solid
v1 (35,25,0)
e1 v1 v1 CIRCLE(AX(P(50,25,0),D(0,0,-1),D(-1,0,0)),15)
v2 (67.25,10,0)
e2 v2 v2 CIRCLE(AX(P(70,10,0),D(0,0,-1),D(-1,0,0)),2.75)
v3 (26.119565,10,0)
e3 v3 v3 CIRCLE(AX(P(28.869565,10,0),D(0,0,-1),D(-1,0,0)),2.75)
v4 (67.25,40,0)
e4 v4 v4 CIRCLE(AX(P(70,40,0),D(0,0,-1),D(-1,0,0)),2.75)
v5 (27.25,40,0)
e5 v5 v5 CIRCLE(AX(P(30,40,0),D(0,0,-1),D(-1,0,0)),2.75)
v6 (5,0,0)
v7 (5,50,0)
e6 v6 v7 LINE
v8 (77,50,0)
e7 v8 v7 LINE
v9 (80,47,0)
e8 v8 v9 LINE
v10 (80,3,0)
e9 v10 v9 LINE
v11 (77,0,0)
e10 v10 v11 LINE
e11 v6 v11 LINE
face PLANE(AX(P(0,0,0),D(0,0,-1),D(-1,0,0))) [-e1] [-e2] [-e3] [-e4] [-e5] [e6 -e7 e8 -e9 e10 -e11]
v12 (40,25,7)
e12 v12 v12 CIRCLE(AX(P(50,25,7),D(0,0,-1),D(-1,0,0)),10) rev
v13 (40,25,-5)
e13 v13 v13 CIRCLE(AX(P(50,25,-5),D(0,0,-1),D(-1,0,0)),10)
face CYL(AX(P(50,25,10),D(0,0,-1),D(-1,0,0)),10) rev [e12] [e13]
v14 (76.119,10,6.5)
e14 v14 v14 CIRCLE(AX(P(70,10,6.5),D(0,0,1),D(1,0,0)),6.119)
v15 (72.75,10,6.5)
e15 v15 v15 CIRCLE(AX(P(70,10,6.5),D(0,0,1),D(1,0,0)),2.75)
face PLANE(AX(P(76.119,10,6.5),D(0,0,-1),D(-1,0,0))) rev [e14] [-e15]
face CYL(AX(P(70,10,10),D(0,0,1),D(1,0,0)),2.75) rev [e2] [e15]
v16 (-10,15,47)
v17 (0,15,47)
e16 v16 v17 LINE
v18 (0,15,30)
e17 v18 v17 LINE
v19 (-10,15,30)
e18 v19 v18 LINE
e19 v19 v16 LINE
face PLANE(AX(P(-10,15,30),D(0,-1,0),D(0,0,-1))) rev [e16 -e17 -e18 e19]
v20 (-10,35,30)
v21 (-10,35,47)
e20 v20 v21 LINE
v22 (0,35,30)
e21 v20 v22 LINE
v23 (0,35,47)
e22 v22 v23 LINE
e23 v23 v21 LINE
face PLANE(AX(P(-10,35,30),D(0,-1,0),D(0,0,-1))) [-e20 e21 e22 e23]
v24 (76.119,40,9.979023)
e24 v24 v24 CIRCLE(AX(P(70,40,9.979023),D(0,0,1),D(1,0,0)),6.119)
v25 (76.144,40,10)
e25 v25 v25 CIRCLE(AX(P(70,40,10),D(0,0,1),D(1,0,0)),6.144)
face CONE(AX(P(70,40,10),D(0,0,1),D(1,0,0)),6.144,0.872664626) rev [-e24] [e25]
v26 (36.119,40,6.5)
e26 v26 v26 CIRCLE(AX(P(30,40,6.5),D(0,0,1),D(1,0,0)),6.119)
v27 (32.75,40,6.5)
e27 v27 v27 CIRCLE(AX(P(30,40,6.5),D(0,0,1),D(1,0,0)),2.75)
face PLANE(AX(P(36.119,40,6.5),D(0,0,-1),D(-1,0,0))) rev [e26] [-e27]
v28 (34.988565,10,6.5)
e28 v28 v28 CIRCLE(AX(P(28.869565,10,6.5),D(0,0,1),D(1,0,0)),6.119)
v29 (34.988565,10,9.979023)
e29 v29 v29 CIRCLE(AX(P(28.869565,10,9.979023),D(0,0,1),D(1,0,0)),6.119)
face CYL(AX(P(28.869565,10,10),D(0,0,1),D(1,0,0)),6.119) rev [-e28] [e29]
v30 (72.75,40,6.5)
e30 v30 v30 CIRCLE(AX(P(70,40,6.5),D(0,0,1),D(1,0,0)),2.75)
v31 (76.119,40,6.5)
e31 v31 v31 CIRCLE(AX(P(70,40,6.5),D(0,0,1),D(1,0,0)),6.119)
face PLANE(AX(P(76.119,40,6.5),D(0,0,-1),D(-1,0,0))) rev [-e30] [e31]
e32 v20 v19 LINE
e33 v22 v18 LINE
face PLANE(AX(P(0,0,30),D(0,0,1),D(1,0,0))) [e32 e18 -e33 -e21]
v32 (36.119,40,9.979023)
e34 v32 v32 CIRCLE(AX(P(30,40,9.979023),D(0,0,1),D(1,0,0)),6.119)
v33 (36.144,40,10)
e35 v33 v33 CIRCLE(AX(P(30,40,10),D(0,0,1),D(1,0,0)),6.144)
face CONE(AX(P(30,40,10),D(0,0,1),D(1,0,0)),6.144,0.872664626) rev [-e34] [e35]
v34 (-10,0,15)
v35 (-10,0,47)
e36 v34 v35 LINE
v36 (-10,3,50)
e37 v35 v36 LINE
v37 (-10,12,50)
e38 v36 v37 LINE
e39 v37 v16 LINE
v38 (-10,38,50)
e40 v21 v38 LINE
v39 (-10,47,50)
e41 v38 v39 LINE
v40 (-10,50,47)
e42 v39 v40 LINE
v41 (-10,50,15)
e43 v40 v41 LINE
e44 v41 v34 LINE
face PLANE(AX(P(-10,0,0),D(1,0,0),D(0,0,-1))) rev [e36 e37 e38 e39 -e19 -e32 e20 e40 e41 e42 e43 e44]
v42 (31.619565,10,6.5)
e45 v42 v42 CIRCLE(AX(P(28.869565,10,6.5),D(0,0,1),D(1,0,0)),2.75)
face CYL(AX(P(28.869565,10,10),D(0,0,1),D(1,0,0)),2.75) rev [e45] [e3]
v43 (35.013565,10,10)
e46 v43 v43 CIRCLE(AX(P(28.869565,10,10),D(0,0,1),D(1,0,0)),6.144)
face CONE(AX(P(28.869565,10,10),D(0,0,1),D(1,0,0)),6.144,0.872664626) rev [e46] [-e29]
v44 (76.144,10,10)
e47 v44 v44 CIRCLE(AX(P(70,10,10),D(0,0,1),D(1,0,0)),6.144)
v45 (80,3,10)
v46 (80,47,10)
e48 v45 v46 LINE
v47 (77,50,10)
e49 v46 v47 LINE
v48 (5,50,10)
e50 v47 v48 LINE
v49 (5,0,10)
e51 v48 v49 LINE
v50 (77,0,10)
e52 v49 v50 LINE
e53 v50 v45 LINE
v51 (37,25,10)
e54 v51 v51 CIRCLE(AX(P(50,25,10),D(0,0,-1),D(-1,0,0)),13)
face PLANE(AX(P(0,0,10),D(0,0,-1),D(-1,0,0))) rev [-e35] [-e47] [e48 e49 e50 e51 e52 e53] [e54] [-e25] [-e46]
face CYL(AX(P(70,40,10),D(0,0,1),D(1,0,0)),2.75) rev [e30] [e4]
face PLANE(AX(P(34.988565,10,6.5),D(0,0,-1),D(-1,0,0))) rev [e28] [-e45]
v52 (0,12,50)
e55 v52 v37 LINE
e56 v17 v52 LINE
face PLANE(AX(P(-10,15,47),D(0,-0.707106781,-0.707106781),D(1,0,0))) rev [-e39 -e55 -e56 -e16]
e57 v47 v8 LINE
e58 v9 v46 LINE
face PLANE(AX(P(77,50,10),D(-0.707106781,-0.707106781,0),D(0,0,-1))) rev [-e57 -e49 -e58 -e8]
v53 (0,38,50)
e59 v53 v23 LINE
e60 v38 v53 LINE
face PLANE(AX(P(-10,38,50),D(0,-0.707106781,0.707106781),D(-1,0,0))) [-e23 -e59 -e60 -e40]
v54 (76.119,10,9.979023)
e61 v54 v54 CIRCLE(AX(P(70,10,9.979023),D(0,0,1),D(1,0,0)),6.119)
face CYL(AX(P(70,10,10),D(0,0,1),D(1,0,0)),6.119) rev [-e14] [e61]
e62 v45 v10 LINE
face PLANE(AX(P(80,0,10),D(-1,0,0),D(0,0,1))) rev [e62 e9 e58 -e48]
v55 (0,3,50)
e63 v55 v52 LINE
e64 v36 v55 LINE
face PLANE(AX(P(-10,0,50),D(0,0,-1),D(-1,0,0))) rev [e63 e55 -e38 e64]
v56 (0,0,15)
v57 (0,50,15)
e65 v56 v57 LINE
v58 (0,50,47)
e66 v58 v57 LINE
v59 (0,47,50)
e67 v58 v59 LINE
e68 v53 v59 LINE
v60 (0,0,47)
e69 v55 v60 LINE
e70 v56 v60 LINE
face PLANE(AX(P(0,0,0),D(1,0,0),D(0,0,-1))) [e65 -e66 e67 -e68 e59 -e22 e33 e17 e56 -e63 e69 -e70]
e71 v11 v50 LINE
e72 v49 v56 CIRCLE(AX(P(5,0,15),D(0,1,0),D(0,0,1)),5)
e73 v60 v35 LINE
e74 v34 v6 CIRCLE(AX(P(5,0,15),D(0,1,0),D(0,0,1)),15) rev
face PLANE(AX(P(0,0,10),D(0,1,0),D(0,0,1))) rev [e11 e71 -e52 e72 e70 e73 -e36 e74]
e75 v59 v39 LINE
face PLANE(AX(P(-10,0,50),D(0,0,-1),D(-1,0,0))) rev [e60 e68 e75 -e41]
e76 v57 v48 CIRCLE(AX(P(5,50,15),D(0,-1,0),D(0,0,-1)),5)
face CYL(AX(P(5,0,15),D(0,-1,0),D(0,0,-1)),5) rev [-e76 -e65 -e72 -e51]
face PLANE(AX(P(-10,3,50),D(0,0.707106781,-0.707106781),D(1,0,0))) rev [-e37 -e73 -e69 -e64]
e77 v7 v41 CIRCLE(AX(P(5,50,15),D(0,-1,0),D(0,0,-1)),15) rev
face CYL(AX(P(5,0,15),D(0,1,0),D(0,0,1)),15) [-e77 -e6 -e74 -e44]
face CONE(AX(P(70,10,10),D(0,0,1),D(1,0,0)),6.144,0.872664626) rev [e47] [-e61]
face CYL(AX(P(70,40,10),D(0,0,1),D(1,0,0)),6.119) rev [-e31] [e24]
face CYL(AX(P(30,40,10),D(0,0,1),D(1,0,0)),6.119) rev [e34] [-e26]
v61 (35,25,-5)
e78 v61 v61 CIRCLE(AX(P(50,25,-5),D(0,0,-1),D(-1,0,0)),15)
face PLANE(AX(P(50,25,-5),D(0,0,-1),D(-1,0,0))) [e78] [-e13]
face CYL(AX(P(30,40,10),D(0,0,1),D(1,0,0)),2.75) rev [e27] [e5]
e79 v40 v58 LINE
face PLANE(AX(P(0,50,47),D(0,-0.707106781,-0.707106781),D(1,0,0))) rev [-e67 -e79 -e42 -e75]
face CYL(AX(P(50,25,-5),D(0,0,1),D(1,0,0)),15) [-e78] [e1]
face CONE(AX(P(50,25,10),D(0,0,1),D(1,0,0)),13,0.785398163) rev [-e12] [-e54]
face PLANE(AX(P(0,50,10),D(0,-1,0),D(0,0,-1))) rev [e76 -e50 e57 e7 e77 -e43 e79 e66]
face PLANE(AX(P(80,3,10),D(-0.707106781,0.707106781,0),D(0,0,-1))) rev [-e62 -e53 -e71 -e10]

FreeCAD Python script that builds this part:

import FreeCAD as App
import Part
import Sketcher
from FreeCAD import Vector
Q = App.Units.Quantity


def edges_at(feature, points):
    """Names of the edges that pass closest to the given points."""
    edges = feature.Shape.Edges
    near = lambda p: min(range(len(edges)), key=lambda i: edges[i].distToShape(Part.Vertex(*p))[0])
    return sorted({f"Edge{near(p) + 1}" for p in points})

doc = App.newDocument("Part")
body = doc.addObject("PartDesign::Body", "Body")

# Sketch on XY plane
sketch1 = body.newObject("Sketcher::SketchObject", "Sketch")
sketch1.AttachmentSupport = (doc.getObject("XY_Plane"), [""])
sketch1.MapMode = "FlatFace"
sketch1.addGeometry(Part.LineSegment(Vector(0, 50, 0), Vector(0, 0, 0)), False)
sketch1.addGeometry(Part.LineSegment(Vector(0, 0, 0), Vector(80, 0, 0)), False)
sketch1.addGeometry(Part.LineSegment(Vector(80, 0, 0), Vector(80, 50, 0)), False)
sketch1.addGeometry(Part.LineSegment(Vector(80, 50, 0), Vector(0, 50, 0)), False)
sketch1.addConstraint(Sketcher.Constraint("Coincident", 0, 2, 1, 1))
sketch1.addConstraint(Sketcher.Constraint("Coincident", 1, 2, 2, 1))
sketch1.addConstraint(Sketcher.Constraint("Coincident", 2, 2, 3, 1))
sketch1.addConstraint(Sketcher.Constraint("Coincident", 3, 2, 0, 1))
sketch1.addConstraint(Sketcher.Constraint("Vertical", 0))
sketch1.addConstraint(Sketcher.Constraint("Horizontal", 1))
sketch1.addConstraint(Sketcher.Constraint("Vertical", 2))
sketch1.addConstraint(Sketcher.Constraint("Horizontal", 3))
sketch1.addConstraint(Sketcher.Constraint("Coincident", 0, 2, -1, 1))
sketch1.addConstraint(Sketcher.Constraint("DistanceX", 1, 1, 1, 2, 80.0))
sketch1.addConstraint(Sketcher.Constraint("DistanceY", 0, 2, 0, 1, 50.0))
pad1 = body.newObject("PartDesign::Pad", "Pad")
pad1.Profile = sketch1
pad1.Length = 10

# Sketch on YZ plane
sketch2 = body.newObject("Sketcher::SketchObject", "Sketch001")
sketch2.AttachmentSupport = (doc.getObject("YZ_Plane"), [""])
sketch2.MapMode = "FlatFace"
sketch2.addGeometry(Part.LineSegment(Vector(50, 0, 0), Vector(0, 0, 0)), False)
sketch2.addGeometry(Part.LineSegment(Vector(0, 0, 0), Vector(0, 50, 0)), False)
sketch2.addGeometry(Part.LineSegment(Vector(0, 50, 0), Vector(50, 50, 0)), False)
sketch2.addGeometry(Part.LineSegment(Vector(50, 50, 0), Vector(50, 0, 0)), False)
sketch2.addConstraint(Sketcher.Constraint("Coincident", 0, 2, 1, 1))
sketch2.addConstraint(Sketcher.Constraint("Coincident", 1, 2, 2, 1))
sketch2.addConstraint(Sketcher.Constraint("Coincident", 2, 2, 3, 1))
sketch2.addConstraint(Sketcher.Constraint("Coincident", 3, 2, 0, 1))
sketch2.addConstraint(Sketcher.Constraint("Horizontal", 0))
sketch2.addConstraint(Sketcher.Constraint("Vertical", 1))
sketch2.addConstraint(Sketcher.Constraint("Horizontal", 2))
sketch2.addConstraint(Sketcher.Constraint("Vertical", 3))
sketch2.addConstraint(Sketcher.Constraint("Coincident", 0, 2, -1, 1))
sketch2.addConstraint(Sketcher.Constraint("Equal", 2, 1))
sketch2.addConstraint(Sketcher.Constraint("DistanceX", 0, 2, 0, 1, 50.0))
pad2 = body.newObject("PartDesign::Pad", "Pad001")
pad2.Profile = sketch2
pad2.Length = 10
pad2.Reversed = True

# Sketch on XY plane
sketch3 = body.newObject("Sketcher::SketchObject", "Sketch002")
sketch3.AttachmentSupport = (doc.getObject("XY_Plane"), [""])
sketch3.MapMode = "FlatFace"
sketch3.AttachmentOffset = App.Placement(Vector(0, 0, 50), App.Rotation())
sketch3.addGeometry(Part.LineSegment(Vector(-10, 35, 0), Vector(-10, 15, 0)), False)
sketch3.addGeometry(Part.LineSegment(Vector(-10, 15, 0), Vector(0, 15, 0)), False)
sketch3.addGeometry(Part.LineSegment(Vector(0, 15, 0), Vector(0, 35, 0)), False)
sketch3.addGeometry(Part.LineSegment(Vector(0, 35, 0), Vector(-10, 35, 0)), False)
sketch3.addConstraint(Sketcher.Constraint("Coincident", 0, 2, 1, 1))
sketch3.addConstraint(Sketcher.Constraint("Coincident", 1, 2, 2, 1))
sketch3.addConstraint(Sketcher.Constraint("Coincident", 2, 2, 3, 1))
sketch3.addConstraint(Sketcher.Constraint("Coincident", 3, 2, 0, 1))
sketch3.addConstraint(Sketcher.Constraint("Vertical", 0))
sketch3.addConstraint(Sketcher.Constraint("Horizontal", 1))
sketch3.addConstraint(Sketcher.Constraint("Vertical", 2))
sketch3.addConstraint(Sketcher.Constraint("Horizontal", 3))
sketch3.addConstraint(Sketcher.Constraint("PointOnObject", 1, 2, -2))
sketch3.addConstraint(Sketcher.Constraint("DistanceX", 1, 1, 1, 2, 10.0))
sketch3.addConstraint(Sketcher.Constraint("DistanceY", 0, 2, 0, 1, 20.0))
sketch3.addConstraint(Sketcher.Constraint("DistanceY", -1, 1, 0, 2, 15.0))
pocket1 = body.newObject("PartDesign::Pocket", "Pocket")
pocket1.Profile = sketch3
pocket1.Length = 20

# Sketch on XY plane
sketch4 = body.newObject("Sketcher::SketchObject", "Sketch003")
sketch4.AttachmentSupport = (doc.getObject("XY_Plane"), [""])
sketch4.MapMode = "FlatFace"
sketch4.addGeometry(Part.Circle(Vector(50, 25, 0), Vector(0, 0, 1), 15), False)
sketch4.addConstraint(Sketcher.Constraint("Diameter", 0, 30.0))
sketch4.addConstraint(Sketcher.Constraint("DistanceX", -1, 1, 0, 3, 50.0))
sketch4.addConstraint(Sketcher.Constraint("DistanceY", -1, 1, 0, 3, 25.0))
pad3 = body.newObject("PartDesign::Pad", "Pad002")
pad3.Profile = sketch4
pad3.Length = 5
pad3.Reversed = True

# Sketch on XY plane
sketch5 = body.newObject("Sketcher::SketchObject", "Sketch004")
sketch5.AttachmentSupport = (doc.getObject("XY_Plane"), [""])
sketch5.MapMode = "FlatFace"
sketch5.AttachmentOffset = App.Placement(Vector(0, 0, -5), App.Rotation())
sketch5.addGeometry(Part.Circle(Vector(50, 25, 0), Vector(0, 0, 1), 10), False)
sketch5.addConstraint(Sketcher.Constraint("Diameter", 0, 20.0))
sketch5.addConstraint(Sketcher.Constraint("DistanceX", -1, 1, 0, 3, 50.0))
sketch5.addConstraint(Sketcher.Constraint("DistanceY", -1, 1, 0, 3, 25.0))
pocket2 = body.newObject("PartDesign::Pocket", "Pocket001")
pocket2.Profile = sketch5
pocket2.Length = 15
pocket2.Reversed = True
doc.recompute()

chamfer = body.newObject("PartDesign::Chamfer", "Chamfer")
chamfer.Base = (pocket2, edges_at(pocket2, [(60, 25, 10)]))
chamfer.Size = 3

# Sketch on YZ plane
sketch6 = body.newObject("Sketcher::SketchObject", "Sketch005")
sketch6.AttachmentSupport = (doc.getObject("YZ_Plane"), [""])
sketch6.MapMode = "FlatFace"
sketch6.AttachmentOffset = App.Placement(Vector(0, 0, 70), App.Rotation())
sketch6.addGeometry(Part.LineSegment(Vector(40, -5, 0), Vector(40, 10, 0)), False)
sketch6.addGeometry(Part.LineSegment(Vector(40, 10, 0), Vector(33.856, 10, 0)), False)
sketch6.addGeometry(Part.LineSegment(Vector(33.856, 10, 0), Vector(33.881, 9.979023, 0)), False)
sketch6.addGeometry(Part.LineSegment(Vector(33.881, 9.979023, 0), Vector(33.881, 6.5, 0)), False)
sketch6.addGeometry(Part.LineSegment(Vector(33.881, 6.5, 0), Vector(37.25, 6.5, 0)), False)
sketch6.addGeometry(Part.LineSegment(Vector(37.25, 6.5, 0), Vector(37.25, -5, 0)), False)
sketch6.addGeometry(Part.LineSegment(Vector(37.25, -5, 0), Vector(40, -5, 0)), False)
sketch6.addGeometry(Part.LineSegment(Vector(40, 10, 0), Vector(40, -5, 0)), True)  # axis
sketch6.addConstraint(Sketcher.Constraint("Coincident", 0, 2, 1, 1))
sketch6.addConstraint(Sketcher.Constraint("Coincident", 1, 2, 2, 1))
sketch6.addConstraint(Sketcher.Constraint("Coincident", 2, 2, 3, 1))
sketch6.addConstraint(Sketcher.Constraint("Coincident", 3, 2, 4, 1))
sketch6.addConstraint(Sketcher.Constraint("Coincident", 4, 2, 5, 1))
sketch6.addConstraint(Sketcher.Constraint("Coincident", 5, 2, 6, 1))
sketch6.addConstraint(Sketcher.Constraint("Coincident", 6, 2, 0, 1))
sketch6.addConstraint(Sketcher.Constraint("Vertical", 0))
sketch6.addConstraint(Sketcher.Constraint("Horizontal", 1))
sketch6.addConstraint(Sketcher.Constraint("Vertical", 3))
sketch6.addConstraint(Sketcher.Constraint("Horizontal", 4))
sketch6.addConstraint(Sketcher.Constraint("Vertical", 5))
sketch6.addConstraint(Sketcher.Constraint("Horizontal", 6))
sketch6.addConstraint(Sketcher.Constraint("Vertical", 7))
sketch6.addConstraint(Sketcher.Constraint("Coincident", 7, 1, 0, 2))
sketch6.addConstraint(Sketcher.Constraint("Horizontal", 5, 2, 7, 2))
sketch6.addConstraint(Sketcher.Constraint("DistanceY", 0, 1, 0, 2, 15.0))
sketch6.addConstraint(Sketcher.Constraint("Angle", 2, Q("-40 deg")))
sketch6.addConstraint(Sketcher.Constraint("DistanceY", 5, 2, 5, 1, 11.5))
sketch6.addConstraint(Sketcher.Constraint("DistanceX", -1, 1, 0, 2, 40.0))
sketch6.addConstraint(Sketcher.Constraint("DistanceY", -1, 1, 0, 2, 10.0))
sketch6.addConstraint(Sketcher.Constraint("DistanceX", 6, 1, 6, 2, 2.75))
sketch6.addConstraint(Sketcher.Constraint("DistanceX", 1, 2, 1, 1, 6.144))
sketch6.addConstraint(Sketcher.Constraint("DistanceX", 4, 1, 4, 2, 3.369))
groove = body.newObject("PartDesign::Groove", "Groove")
groove.Profile = sketch6
groove.ReferenceAxis = (sketch6, ["Axis0"])
groove.Angle = 360
doc.recompute()

linearpattern = body.newObject("PartDesign::LinearPattern", "LinearPattern")
linearpattern.Originals = [groove]
linearpattern.Direction = (doc.getObject("Y_Axis"), [""])
linearpattern.Mode = "offset"
linearpattern.Offset = 30
linearpattern.Occurrences = 2
linearpattern.Reversed = True
body.Tip = linearpattern
doc.recompute()

datumline = body.newObject("PartDesign::Line", "DatumLine")
datumline.Placement = App.Placement(Vector(0, 0, 0), App.Rotation(Vector(0, 0, 1), Vector(-0.80792282, -0.589288314, 0)))
linearpattern2 = body.newObject("PartDesign::LinearPattern", "LinearPattern001")
linearpattern2.Originals = [groove]
linearpattern2.Direction = (datumline, [""])
linearpattern2.Mode = "offset"
linearpattern2.Offset = 50.908866
linearpattern2.Occurrences = 2
body.Tip = linearpattern2
doc.recompute()

linearpattern3 = body.newObject("PartDesign::LinearPattern", "LinearPattern002")
linearpattern3.Originals = [groove]
linearpattern3.Direction = (doc.getObject("X_Axis"), [""])
linearpattern3.Mode = "offset"
linearpattern3.Offset = 40
linearpattern3.Occurrences = 2
linearpattern3.Reversed = True
body.Tip = linearpattern3
doc.recompute()

chamfer2 = body.newObject("PartDesign::Chamfer", "Chamfer001")
chamfer2.Base = (linearpattern3, edges_at(linearpattern3, [(-5, 50, 50)]))
chamfer2.Size = 3
doc.recompute()

chamfer3 = body.newObject("PartDesign::Chamfer", "Chamfer002")
chamfer3.Base = (chamfer2, edges_at(chamfer2, [(-5, 35, 50)]))
chamfer3.Size = 3
doc.recompute()

chamfer4 = body.newObject("PartDesign::Chamfer", "Chamfer003")
chamfer4.Base = (chamfer3, edges_at(chamfer3, [
    (-5, 0, 50),
    (-5, 15, 50),
    (80, 50, 5),
    (80, 0, 5),
]))
chamfer4.Size = 3
doc.recompute()

fillet = body.newObject("PartDesign::Fillet", "Fillet")
fillet.Base = (chamfer4, edges_at(chamfer4, [(0, 25, 10)]))
fillet.Radius = 5
doc.recompute()

fillet2 = body.newObject("PartDesign::Fillet", "Fillet001")
fillet2.Base = (fillet, edges_at(fillet, [(-10, 25, 0)]))
fillet2.Radius = 15

doc.recompute()
